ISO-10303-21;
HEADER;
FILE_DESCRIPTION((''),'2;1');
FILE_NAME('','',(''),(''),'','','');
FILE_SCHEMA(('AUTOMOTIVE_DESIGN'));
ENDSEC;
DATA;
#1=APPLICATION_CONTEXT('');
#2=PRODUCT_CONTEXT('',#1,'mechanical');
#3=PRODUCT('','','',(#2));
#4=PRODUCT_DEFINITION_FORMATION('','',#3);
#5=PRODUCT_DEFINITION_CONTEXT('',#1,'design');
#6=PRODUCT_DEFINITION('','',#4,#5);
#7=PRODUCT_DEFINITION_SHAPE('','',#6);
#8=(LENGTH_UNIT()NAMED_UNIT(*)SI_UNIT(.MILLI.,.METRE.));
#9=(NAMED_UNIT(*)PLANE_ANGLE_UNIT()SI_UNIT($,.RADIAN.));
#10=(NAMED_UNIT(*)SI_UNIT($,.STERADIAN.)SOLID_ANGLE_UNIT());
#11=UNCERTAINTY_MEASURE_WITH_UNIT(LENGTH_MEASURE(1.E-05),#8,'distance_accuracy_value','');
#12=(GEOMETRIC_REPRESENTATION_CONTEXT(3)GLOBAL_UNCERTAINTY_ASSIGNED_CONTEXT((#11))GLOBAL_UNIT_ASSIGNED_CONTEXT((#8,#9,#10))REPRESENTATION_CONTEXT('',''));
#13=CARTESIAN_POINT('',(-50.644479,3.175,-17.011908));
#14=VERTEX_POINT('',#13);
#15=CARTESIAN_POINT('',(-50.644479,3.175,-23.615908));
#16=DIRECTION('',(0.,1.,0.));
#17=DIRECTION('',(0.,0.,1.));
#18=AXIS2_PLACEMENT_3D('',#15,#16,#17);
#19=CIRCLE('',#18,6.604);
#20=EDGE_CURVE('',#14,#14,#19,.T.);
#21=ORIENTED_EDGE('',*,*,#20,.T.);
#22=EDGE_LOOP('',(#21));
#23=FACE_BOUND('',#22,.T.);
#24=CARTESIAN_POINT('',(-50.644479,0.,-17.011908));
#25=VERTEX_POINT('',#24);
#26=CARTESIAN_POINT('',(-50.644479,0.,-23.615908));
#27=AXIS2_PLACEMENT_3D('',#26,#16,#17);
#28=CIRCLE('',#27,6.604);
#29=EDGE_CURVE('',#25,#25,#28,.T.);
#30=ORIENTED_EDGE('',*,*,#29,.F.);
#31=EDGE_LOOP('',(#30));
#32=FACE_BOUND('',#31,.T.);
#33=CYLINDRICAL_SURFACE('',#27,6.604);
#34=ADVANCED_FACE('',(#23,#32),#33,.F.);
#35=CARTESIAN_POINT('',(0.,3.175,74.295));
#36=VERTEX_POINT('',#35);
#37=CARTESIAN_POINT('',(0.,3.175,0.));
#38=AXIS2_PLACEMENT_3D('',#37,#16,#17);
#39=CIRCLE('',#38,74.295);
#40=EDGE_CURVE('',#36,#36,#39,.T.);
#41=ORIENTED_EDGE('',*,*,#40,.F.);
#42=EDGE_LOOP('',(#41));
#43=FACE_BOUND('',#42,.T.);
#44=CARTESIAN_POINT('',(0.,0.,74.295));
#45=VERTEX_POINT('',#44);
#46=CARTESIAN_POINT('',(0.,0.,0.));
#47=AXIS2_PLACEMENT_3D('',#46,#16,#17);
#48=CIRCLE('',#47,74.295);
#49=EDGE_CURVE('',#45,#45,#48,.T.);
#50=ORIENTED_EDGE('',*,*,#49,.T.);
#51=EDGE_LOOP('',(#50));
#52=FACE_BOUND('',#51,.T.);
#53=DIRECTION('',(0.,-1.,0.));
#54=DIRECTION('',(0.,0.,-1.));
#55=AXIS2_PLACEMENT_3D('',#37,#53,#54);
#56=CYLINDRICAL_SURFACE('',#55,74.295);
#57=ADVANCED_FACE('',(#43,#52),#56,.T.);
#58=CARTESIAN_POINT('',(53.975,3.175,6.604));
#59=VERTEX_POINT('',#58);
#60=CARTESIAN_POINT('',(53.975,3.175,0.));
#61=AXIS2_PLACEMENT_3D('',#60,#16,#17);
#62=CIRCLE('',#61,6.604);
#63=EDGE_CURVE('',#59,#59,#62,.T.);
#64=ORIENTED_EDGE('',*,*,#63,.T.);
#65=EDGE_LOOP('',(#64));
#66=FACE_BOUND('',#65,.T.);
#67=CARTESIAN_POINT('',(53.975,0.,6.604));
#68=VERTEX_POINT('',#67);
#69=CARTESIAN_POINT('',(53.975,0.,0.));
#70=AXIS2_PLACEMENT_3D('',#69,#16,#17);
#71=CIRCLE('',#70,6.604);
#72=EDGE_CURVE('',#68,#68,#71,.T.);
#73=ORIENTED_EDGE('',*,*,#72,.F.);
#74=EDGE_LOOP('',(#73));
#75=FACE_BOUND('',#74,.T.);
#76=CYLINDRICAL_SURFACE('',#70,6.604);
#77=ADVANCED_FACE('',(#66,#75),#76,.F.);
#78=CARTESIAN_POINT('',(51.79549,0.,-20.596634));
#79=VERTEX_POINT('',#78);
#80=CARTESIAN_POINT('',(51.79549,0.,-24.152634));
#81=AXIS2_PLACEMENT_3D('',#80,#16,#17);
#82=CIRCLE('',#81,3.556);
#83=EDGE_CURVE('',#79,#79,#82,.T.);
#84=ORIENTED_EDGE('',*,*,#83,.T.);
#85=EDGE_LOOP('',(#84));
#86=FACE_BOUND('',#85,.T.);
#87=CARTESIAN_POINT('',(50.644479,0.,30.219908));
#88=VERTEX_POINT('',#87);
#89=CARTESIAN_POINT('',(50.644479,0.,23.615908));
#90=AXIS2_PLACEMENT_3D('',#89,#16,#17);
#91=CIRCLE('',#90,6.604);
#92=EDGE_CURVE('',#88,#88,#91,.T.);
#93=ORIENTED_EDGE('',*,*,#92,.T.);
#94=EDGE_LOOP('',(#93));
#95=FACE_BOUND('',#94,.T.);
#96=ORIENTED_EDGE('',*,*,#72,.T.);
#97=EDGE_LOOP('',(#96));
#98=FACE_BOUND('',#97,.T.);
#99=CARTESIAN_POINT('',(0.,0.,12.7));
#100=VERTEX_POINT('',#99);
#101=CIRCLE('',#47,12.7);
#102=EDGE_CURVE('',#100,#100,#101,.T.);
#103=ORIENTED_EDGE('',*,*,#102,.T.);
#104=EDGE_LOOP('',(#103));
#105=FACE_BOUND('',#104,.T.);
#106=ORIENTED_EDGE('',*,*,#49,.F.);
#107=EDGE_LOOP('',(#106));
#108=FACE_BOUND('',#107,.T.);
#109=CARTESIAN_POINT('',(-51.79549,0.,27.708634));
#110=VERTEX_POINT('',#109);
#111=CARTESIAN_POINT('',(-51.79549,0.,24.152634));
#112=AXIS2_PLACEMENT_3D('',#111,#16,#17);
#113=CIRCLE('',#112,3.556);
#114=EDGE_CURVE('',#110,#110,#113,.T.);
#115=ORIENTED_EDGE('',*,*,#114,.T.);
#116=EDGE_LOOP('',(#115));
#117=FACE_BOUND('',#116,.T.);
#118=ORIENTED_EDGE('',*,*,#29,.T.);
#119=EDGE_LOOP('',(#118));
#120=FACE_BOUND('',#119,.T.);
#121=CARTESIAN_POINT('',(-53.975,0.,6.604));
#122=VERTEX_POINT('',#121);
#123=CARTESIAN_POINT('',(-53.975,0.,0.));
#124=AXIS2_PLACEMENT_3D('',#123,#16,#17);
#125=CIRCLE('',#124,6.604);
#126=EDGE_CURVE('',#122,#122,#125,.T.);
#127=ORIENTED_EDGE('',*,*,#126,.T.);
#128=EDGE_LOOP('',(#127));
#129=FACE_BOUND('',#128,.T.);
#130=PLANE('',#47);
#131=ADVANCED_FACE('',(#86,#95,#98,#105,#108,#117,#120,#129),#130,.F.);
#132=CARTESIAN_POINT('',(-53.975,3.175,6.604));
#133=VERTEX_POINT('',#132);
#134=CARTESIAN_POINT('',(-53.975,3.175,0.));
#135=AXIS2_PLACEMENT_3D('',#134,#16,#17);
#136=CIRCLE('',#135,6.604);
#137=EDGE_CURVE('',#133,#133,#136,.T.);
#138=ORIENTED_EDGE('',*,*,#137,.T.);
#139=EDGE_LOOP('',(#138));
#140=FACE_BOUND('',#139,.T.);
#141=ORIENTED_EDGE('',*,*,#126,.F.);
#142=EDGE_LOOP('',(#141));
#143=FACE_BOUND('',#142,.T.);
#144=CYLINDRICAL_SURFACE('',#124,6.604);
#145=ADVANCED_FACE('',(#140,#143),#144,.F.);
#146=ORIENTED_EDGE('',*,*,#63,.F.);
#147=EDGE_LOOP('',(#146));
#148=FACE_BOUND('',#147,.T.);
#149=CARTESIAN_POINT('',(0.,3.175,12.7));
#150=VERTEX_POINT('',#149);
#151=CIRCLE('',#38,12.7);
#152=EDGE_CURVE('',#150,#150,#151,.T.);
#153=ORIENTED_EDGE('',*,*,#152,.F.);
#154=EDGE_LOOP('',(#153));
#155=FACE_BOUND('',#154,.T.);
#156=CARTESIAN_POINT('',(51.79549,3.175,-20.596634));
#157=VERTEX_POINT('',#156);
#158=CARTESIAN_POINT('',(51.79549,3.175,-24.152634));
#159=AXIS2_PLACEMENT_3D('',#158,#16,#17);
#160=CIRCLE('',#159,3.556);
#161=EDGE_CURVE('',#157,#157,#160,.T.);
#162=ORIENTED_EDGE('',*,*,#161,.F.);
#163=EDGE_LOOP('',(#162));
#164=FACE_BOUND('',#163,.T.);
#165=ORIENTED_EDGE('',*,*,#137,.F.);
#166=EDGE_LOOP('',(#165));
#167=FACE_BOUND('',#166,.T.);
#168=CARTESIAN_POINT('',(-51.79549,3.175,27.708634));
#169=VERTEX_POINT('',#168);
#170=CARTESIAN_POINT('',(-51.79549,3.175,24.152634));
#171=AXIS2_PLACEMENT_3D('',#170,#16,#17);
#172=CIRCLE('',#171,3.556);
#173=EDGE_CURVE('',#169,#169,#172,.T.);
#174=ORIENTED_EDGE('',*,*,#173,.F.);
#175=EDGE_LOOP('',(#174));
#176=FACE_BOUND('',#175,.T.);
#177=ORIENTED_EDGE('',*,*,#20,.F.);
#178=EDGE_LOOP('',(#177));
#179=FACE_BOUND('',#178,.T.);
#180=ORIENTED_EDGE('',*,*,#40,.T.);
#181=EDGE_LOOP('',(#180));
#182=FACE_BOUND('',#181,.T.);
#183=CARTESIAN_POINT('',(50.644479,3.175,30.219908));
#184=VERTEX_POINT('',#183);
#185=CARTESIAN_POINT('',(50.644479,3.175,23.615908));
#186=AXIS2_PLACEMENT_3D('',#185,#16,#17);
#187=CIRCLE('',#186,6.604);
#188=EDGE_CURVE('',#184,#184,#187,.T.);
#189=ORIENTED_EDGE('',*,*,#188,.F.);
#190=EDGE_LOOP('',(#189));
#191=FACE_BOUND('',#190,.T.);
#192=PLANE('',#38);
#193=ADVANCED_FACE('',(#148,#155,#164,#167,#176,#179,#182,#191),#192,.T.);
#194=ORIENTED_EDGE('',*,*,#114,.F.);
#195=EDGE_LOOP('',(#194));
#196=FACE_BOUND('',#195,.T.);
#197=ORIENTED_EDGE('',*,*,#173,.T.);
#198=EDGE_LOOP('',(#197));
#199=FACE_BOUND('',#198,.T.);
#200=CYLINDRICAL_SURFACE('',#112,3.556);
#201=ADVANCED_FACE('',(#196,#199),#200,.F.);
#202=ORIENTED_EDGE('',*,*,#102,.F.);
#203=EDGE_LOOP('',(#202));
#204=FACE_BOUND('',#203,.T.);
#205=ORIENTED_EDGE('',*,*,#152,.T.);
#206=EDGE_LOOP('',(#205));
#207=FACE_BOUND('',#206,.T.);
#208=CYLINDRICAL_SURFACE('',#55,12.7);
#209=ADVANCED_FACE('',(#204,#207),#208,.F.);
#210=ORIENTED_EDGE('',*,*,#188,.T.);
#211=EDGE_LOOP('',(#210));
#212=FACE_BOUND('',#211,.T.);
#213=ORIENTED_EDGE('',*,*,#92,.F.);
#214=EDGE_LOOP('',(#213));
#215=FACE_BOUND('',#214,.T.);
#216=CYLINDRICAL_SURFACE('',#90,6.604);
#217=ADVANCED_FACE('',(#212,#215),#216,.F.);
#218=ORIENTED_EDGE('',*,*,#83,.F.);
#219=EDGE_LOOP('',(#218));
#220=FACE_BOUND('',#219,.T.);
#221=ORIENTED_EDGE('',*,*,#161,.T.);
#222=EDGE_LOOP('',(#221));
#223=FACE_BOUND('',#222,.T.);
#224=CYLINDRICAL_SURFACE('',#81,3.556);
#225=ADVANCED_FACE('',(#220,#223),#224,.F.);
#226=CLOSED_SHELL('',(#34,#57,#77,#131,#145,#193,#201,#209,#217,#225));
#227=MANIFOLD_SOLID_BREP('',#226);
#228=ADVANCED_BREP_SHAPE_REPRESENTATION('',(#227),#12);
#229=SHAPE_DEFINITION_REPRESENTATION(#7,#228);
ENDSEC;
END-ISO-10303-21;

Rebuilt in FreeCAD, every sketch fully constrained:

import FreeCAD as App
import Part
import Sketcher
from FreeCAD import Vector
Q = App.Units.Quantity

doc = App.newDocument("Part")
body = doc.addObject("PartDesign::Body", "Body")

# Sketch on XZ plane
sketch1 = body.newObject("Sketcher::SketchObject", "Sketch")
sketch1.AttachmentSupport = (doc.getObject("XZ_Plane"), [""])
sketch1.MapMode = "FlatFace"
sketch1.addGeometry([
    Part.Circle(Vector(0, 0, 0), Vector(0, 0, 1), 74),
    Part.Circle(Vector(0, 0, 0), Vector(0, 0, 1), 13),
], False)
sketch1.addConstraint([
    Sketcher.Constraint("Coincident", 0, 3, -1, 1),
    Sketcher.Constraint("Coincident", 1, 3, -1, 1),
    Sketcher.Constraint("Diameter", 1, Q("1 in")),
    Sketcher.Constraint("Diameter", 0, Q("5.85 in")),
])
pad1 = body.newObject("PartDesign::Pad", "Pad")
pad1.Profile = sketch1
pad1.Length = Q("0.125 in")
pad1.Reversed = True

# Sketch on XZ plane
sketch2 = body.newObject("Sketcher::SketchObject", "Sketch001")
sketch2.AttachmentSupport = (doc.getObject("XZ_Plane"), [""])
sketch2.MapMode = "FlatFace"
sketch2.AttachmentOffset = App.Placement(Vector(0, 0, -0.125 * 25.4), App.Rotation())
sketch2.addGeometry([
    Part.Circle(Vector(-54, 0, 0), Vector(0, 0, 1), 6.6),  # 0
    Part.Circle(Vector(54, 0, 0), Vector(0, 0, 1), 6.6),  # 1
    Part.Circle(Vector(-51.8, 24.2, 0), Vector(0, 0, 1), 3.6),  # 2
    Part.Circle(Vector(51.8, -24.2, 0), Vector(0, 0, 1), 3.6),  # 3
    Part.Circle(Vector(50.6, 23.6, 0), Vector(0, 0, 1), 6.6),  # 4
    Part.Circle(Vector(-50.6, -23.6, 0), Vector(0, 0, 1), 6.6),  # 5
], False)
sketch2.addConstraint([
    Sketcher.Constraint("Equal", 0, 1),
    Sketcher.Constraint("Equal", 2, 3),
    Sketcher.Constraint("Equal", 1, 4),
    Sketcher.Constraint("Equal", 4, 5),
    Sketcher.Constraint("Symmetric", 0, 3, 1, 3, -1, 1),
    Sketcher.Constraint("Symmetric", 2, 3, 3, 3, -1, 1),
    Sketcher.Constraint("Symmetric", 4, 3, 5, 3, -1, 1),
    Sketcher.Constraint("PointOnObject", 0, 3, -1),
    Sketcher.Constraint("Diameter", 0, Q("0.52 in")),
    Sketcher.Constraint("Diameter", 2, Q("0.28 in")),
    Sketcher.Constraint("DistanceX", 0, 3, 1, 3, Q("4.25 in")),
    Sketcher.Constraint("DistanceX", 2, 3, -1, 1, 51.79549),
    Sketcher.Constraint("DistanceX", -1, 1, 4, 3, 50.644479),
    Sketcher.Constraint("DistanceY", -1, 1, 4, 3, 23.615908),
    Sketcher.Constraint("DistanceY", -1, 1, 2, 3, 24.152634),
])
pocket1 = body.newObject("PartDesign::Pocket", "Pocket")
pocket1.Profile = sketch2
pocket1.Length = Q("0.125 in")
pocket1.Reversed = True

doc.recompute()
